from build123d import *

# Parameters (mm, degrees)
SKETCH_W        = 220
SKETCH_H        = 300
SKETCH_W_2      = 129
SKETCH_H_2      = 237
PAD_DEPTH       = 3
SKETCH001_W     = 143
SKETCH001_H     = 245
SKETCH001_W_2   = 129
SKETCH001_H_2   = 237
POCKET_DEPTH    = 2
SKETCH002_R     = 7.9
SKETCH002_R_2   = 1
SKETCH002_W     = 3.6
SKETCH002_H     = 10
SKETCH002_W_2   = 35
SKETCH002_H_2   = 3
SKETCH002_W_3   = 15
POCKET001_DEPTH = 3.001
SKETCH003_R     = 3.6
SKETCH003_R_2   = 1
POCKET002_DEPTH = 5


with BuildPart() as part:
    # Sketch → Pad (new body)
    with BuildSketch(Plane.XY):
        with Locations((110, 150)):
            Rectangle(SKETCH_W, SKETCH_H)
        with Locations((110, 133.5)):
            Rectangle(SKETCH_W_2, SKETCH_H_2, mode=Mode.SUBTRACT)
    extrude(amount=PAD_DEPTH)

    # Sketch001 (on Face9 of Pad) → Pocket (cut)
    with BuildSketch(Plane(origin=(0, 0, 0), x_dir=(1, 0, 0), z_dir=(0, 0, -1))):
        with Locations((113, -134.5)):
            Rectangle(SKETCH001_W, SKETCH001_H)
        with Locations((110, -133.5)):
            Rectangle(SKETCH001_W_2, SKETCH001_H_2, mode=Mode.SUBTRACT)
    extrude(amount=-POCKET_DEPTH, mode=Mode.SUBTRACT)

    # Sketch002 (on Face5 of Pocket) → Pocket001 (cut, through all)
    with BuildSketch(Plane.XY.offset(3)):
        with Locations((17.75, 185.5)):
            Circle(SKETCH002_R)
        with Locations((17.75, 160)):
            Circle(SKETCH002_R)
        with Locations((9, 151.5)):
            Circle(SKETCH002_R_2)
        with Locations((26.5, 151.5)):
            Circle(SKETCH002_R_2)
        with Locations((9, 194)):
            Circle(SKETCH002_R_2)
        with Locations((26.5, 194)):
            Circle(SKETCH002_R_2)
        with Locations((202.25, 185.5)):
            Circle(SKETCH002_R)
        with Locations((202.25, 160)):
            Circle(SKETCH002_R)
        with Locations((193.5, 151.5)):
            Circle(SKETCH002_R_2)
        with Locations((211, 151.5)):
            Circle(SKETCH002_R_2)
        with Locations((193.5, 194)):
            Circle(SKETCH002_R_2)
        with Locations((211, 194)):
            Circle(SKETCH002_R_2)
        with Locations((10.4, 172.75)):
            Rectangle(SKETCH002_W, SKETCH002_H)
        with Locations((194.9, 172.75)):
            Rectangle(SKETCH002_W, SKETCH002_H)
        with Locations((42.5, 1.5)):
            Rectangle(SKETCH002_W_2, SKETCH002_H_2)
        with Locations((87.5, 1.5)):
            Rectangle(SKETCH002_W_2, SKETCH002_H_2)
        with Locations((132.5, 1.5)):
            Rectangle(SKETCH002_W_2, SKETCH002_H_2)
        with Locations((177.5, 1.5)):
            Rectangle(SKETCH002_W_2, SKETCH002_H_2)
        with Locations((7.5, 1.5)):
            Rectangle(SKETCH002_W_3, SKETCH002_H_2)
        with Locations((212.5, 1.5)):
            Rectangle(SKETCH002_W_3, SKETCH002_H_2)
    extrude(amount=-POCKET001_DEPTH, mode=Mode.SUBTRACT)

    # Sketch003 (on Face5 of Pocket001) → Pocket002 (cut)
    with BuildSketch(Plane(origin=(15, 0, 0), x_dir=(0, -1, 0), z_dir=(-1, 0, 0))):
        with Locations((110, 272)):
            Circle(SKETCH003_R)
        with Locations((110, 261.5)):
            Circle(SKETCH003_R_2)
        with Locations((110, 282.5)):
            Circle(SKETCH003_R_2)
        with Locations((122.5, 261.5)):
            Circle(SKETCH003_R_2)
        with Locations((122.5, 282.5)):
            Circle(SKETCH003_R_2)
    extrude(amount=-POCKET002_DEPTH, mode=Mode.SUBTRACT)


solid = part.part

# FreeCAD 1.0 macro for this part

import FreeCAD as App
import Part
import Sketcher

V = App.Vector
Q = App.Units.Quantity


def add_polygon(sketch, points):
    """Adds a closed chain of lines whose ends are joined by coincident constraints."""
    first, n = sketch.GeometryCount, len(points)
    for a, b in zip(points, points[1:] + points[:1]):
        sketch.addGeometry(Part.LineSegment(App.Vector(*a, 0), App.Vector(*b, 0)), False)
    for i in range(n):
        sketch.addConstraint(Sketcher.Constraint("Coincident", first + i, 2, first + (i + 1) % n, 1))

doc = App.newDocument("Part")
body = doc.addObject("PartDesign::Body", "Body")

# Sketch on XY plane
sketch1 = body.newObject("Sketcher::SketchObject", "Sketch")
sketch1.AttachmentSupport = (doc.getObject("XY_Plane"), [""])
sketch1.MapMode = "FlatFace"
add_polygon(sketch1, [(0, 300), (0, 0), (220, 0), (220, 300)])  # lines 0-3
add_polygon(sketch1, [(174, 15), (46, 15), (46, 252), (174, 252)])  # lines 4-7
sketch1.addConstraint(Sketcher.Constraint("Vertical", 0))
sketch1.addConstraint(Sketcher.Constraint("Horizontal", 1))
sketch1.addConstraint(Sketcher.Constraint("Vertical", 2))
sketch1.addConstraint(Sketcher.Constraint("Horizontal", 3))
sketch1.addConstraint(Sketcher.Constraint("Horizontal", 4))
sketch1.addConstraint(Sketcher.Constraint("Vertical", 5))
sketch1.addConstraint(Sketcher.Constraint("Horizontal", 6))
sketch1.addConstraint(Sketcher.Constraint("Vertical", 7))
sketch1.addConstraint(Sketcher.Constraint("Coincident", 0, 2, -1, 1))
sketch1.addConstraint(Sketcher.Constraint("DistanceX", 1, 1, 1, 2, Q("220 mm")))
sketch1.addConstraint(Sketcher.Constraint("DistanceX", 4, 2, 4, 1, Q("129 mm")))
sketch1.addConstraint(Sketcher.Constraint("DistanceY", 0, 2, 0, 1, Q("300 mm")))
sketch1.addConstraint(Sketcher.Constraint("DistanceY", 5, 1, 5, 2, Q("237 mm")))
sketch1.addConstraint(Sketcher.Constraint("DistanceY", -1, 1, 4, 2, Q("15 mm")))
sketch1.addConstraint(Sketcher.Constraint("DistanceX", -1, 1, 4, 2, Q("45.5 mm")))
pad1 = body.newObject("PartDesign::Pad", "Pad")
pad1.Profile = sketch1
pad1.Length = 3

# Sketch on XY plane
sketch2 = body.newObject("Sketcher::SketchObject", "Sketch001")
sketch2.AttachmentSupport = (doc.getObject("XY_Plane"), [""])
sketch2.MapMode = "FlatFace"
add_polygon(sketch2, [(42, 12), (42, 257), (184, 257), (184, 12)])  # lines 0-3
add_polygon(sketch2, [(174, 252), (46, 252), (46, 15), (174, 15)])  # lines 4-7
sketch2.addConstraint(Sketcher.Constraint("Vertical", 0))
sketch2.addConstraint(Sketcher.Constraint("Horizontal", 1))
sketch2.addConstraint(Sketcher.Constraint("Vertical", 2))
sketch2.addConstraint(Sketcher.Constraint("Horizontal", 3))
sketch2.addConstraint(Sketcher.Constraint("Horizontal", 4))
sketch2.addConstraint(Sketcher.Constraint("Vertical", 5))
sketch2.addConstraint(Sketcher.Constraint("Horizontal", 6))
sketch2.addConstraint(Sketcher.Constraint("Vertical", 7))
sketch2.addConstraint(Sketcher.Constraint("DistanceX", 1, 1, 1, 2, Q("143 mm")))
sketch2.addConstraint(Sketcher.Constraint("DistanceX", 4, 2, 4, 1, Q("129 mm")))
sketch2.addConstraint(Sketcher.Constraint("DistanceY", 0, 1, 0, 2, Q("245 mm")))
sketch2.addConstraint(Sketcher.Constraint("DistanceY", 5, 2, 5, 1, Q("237 mm")))
sketch2.addConstraint(Sketcher.Constraint("DistanceY", -1, 1, 0, 2, Q("257 mm")))
sketch2.addConstraint(Sketcher.Constraint("DistanceY", -1, 1, 4, 2, Q("252 mm")))
sketch2.addConstraint(Sketcher.Constraint("DistanceX", 0, 2, 4, 2, Q("4 mm")))
sketch2.addConstraint(Sketcher.Constraint("DistanceX", -1, 1, 0, 2, Q("41.5 mm")))
pocket1 = body.newObject("PartDesign::Pocket", "Pocket")
pocket1.Profile = sketch2
pocket1.Length = 2
pocket1.Reversed = True

# Sketch on XY plane
sketch3 = body.newObject("Sketcher::SketchObject", "Sketch002")
sketch3.AttachmentSupport = (doc.getObject("XY_Plane"), [""])
sketch3.MapMode = "FlatFace"
sketch3.AttachmentOffset = App.Placement(V(0, 0, 3), App.Rotation())
sketch3.addGeometry(Part.Circle(V(17.8, 185.5, 0), V(0, 0, 1), 7.9), False)  # 0
sketch3.addGeometry(Part.Circle(V(17.8, 160, 0), V(0, 0, 1), 7.9), False)  # 1
sketch3.addGeometry(Part.Circle(V(9, 151.5, 0), V(0, 0, 1), 1), False)  # 2
sketch3.addGeometry(Part.Circle(V(26.5, 151.5, 0), V(0, 0, 1), 1), False)  # 3
sketch3.addGeometry(Part.Circle(V(9, 194, 0), V(0, 0, 1), 1), False)  # 4
sketch3.addGeometry(Part.Circle(V(26.5, 194, 0), V(0, 0, 1), 1), False)  # 5
sketch3.addGeometry(Part.Circle(V(202.2, 185.5, 0), V(0, 0, 1), 7.9), False)  # 6
sketch3.addGeometry(Part.Circle(V(202.2, 160, 0), V(0, 0, 1), 7.9), False)  # 7
sketch3.addGeometry(Part.Circle(V(193.5, 151.5, 0), V(0, 0, 1), 1), False)  # 8
sketch3.addGeometry(Part.Circle(V(211, 151.5, 0), V(0, 0, 1), 1), False)  # 9
sketch3.addGeometry(Part.Circle(V(193.5, 194, 0), V(0, 0, 1), 1), False)  # 10
sketch3.addGeometry(Part.Circle(V(211, 194, 0), V(0, 0, 1), 1), False)  # 11
add_polygon(sketch3, [(8.6, 177.8), (8.6, 167.8), (12.2, 167.8), (12.2, 177.8)])  # lines 12-15
add_polygon(sketch3, [(193.1, 177.8), (193.1, 167.8), (196.7, 167.8), (196.7, 177.8)])  # lines 16-19
add_polygon(sketch3, [(25, 3), (25, 0), (60, 0), (60, 3)])  # lines 20-23
add_polygon(sketch3, [(70, 3), (70, 0), (105, 0), (105, 3)])  # lines 24-27
add_polygon(sketch3, [(115, 3), (115, 0), (150, 0), (150, 3)])  # lines 28-31
add_polygon(sketch3, [(160, 3), (160, 0), (195, 0), (195, 3)])  # lines 32-35
add_polygon(sketch3, [(0, 3), (0, 0), (15, 0), (15, 3)])  # lines 36-39
add_polygon(sketch3, [(205, 3), (205, 0), (220, 0), (220, 3)])  # lines 40-43
sketch3.addConstraint(Sketcher.Constraint("Vertical", 12))
sketch3.addConstraint(Sketcher.Constraint("Horizontal", 13))
sketch3.addConstraint(Sketcher.Constraint("Vertical", 14))
sketch3.addConstraint(Sketcher.Constraint("Horizontal", 15))
sketch3.addConstraint(Sketcher.Constraint("Vertical", 16))
sketch3.addConstraint(Sketcher.Constraint("Horizontal", 17))
sketch3.addConstraint(Sketcher.Constraint("Vertical", 18))
sketch3.addConstraint(Sketcher.Constraint("Horizontal", 19))
sketch3.addConstraint(Sketcher.Constraint("Vertical", 20))
sketch3.addConstraint(Sketcher.Constraint("Horizontal", 21))
sketch3.addConstraint(Sketcher.Constraint("Vertical", 22))
sketch3.addConstraint(Sketcher.Constraint("Horizontal", 23))
sketch3.addConstraint(Sketcher.Constraint("Vertical", 24))
sketch3.addConstraint(Sketcher.Constraint("Horizontal", 25))
sketch3.addConstraint(Sketcher.Constraint("Vertical", 26))
sketch3.addConstraint(Sketcher.Constraint("Horizontal", 27))
sketch3.addConstraint(Sketcher.Constraint("Vertical", 28))
sketch3.addConstraint(Sketcher.Constraint("Horizontal", 29))
sketch3.addConstraint(Sketcher.Constraint("Vertical", 30))
sketch3.addConstraint(Sketcher.Constraint("Horizontal", 31))
sketch3.addConstraint(Sketcher.Constraint("Vertical", 32))
sketch3.addConstraint(Sketcher.Constraint("Horizontal", 33))
sketch3.addConstraint(Sketcher.Constraint("Vertical", 34))
sketch3.addConstraint(Sketcher.Constraint("Horizontal", 35))
sketch3.addConstraint(Sketcher.Constraint("Vertical", 36))
sketch3.addConstraint(Sketcher.Constraint("Horizontal", 37))
sketch3.addConstraint(Sketcher.Constraint("Vertical", 38))
sketch3.addConstraint(Sketcher.Constraint("Horizontal", 39))
sketch3.addConstraint(Sketcher.Constraint("Vertical", 40))
sketch3.addConstraint(Sketcher.Constraint("Horizontal", 41))
sketch3.addConstraint(Sketcher.Constraint("Vertical", 42))
sketch3.addConstraint(Sketcher.Constraint("Horizontal", 43))
sketch3.addConstraint(Sketcher.Constraint("Coincident", 36, 2, -1, 1))
sketch3.addConstraint(Sketcher.Constraint("Equal", 0, 1))
sketch3.addConstraint(Sketcher.Constraint("Equal", 2, 3))
sketch3.addConstraint(Sketcher.Constraint("Equal", 3, 4))
sketch3.addConstraint(Sketcher.Constraint("Equal", 4, 5))
sketch3.addConstraint(Sketcher.Constraint("Equal", 1, 6))
sketch3.addConstraint(Sketcher.Constraint("Equal", 6, 7))
sketch3.addConstraint(Sketcher.Constraint("Equal", 5, 8))
sketch3.addConstraint(Sketcher.Constraint("Equal", 8, 9))
sketch3.addConstraint(Sketcher.Constraint("Equal", 9, 10))
sketch3.addConstraint(Sketcher.Constraint("Equal", 10, 11))
sketch3.addConstraint(Sketcher.Constraint("PointOnObject", 20, 2, -1))
sketch3.addConstraint(Sketcher.Constraint("PointOnObject", 24, 2, -1))
sketch3.addConstraint(Sketcher.Constraint("PointOnObject", 28, 2, -1))
sketch3.addConstraint(Sketcher.Constraint("PointOnObject", 32, 2, -1))
sketch3.addConstraint(Sketcher.Constraint("PointOnObject", 40, 2, -1))
sketch3.addConstraint(Sketcher.Constraint("Horizontal", 2, 3, 3, 3))
sketch3.addConstraint(Sketcher.Constraint("Horizontal", 4, 3, 5, 3))
sketch3.addConstraint(Sketcher.Constraint("Horizontal", 0, 3, 6, 3))
sketch3.addConstraint(Sketcher.Constraint("Horizontal", 1, 3, 7, 3))
sketch3.addConstraint(Sketcher.Constraint("Horizontal", 3, 3, 8, 3))
sketch3.addConstraint(Sketcher.Constraint("Horizontal", 8, 3, 9, 3))
sketch3.addConstraint(Sketcher.Constraint("Horizontal", 5, 3, 10, 3))
sketch3.addConstraint(Sketcher.Constraint("Horizontal", 10, 3, 11, 3))
sketch3.addConstraint(Sketcher.Constraint("Horizontal", 13, 2, 16, 2))
sketch3.addConstraint(Sketcher.Constraint("Horizontal", 15, 2, 18, 2))
sketch3.addConstraint(Sketcher.Constraint("Horizontal", 23, 2, 26, 2))
sketch3.addConstraint(Sketcher.Constraint("Horizontal", 27, 2, 30, 2))
sketch3.addConstraint(Sketcher.Constraint("Horizontal", 31, 2, 34, 2))
sketch3.addConstraint(Sketcher.Constraint("Horizontal", 35, 2, 38, 2))
sketch3.addConstraint(Sketcher.Constraint("Horizontal", 39, 2, 42, 2))
sketch3.addConstraint(Sketcher.Constraint("Vertical", 0, 3, 1, 3))
sketch3.addConstraint(Sketcher.Constraint("Vertical", 2, 3, 4, 3))
sketch3.addConstraint(Sketcher.Constraint("Vertical", 3, 3, 5, 3))
sketch3.addConstraint(Sketcher.Constraint("Vertical", 6, 3, 7, 3))
sketch3.addConstraint(Sketcher.Constraint("Vertical", 8, 3, 10, 3))
sketch3.addConstraint(Sketcher.Constraint("Vertical", 9, 3, 11, 3))
sketch3.addConstraint(Sketcher.Constraint("Equal", 15, 17))
sketch3.addConstraint(Sketcher.Constraint("Equal", 23, 25))
sketch3.addConstraint(Sketcher.Constraint("Equal", 27, 29))
sketch3.addConstraint(Sketcher.Constraint("Equal", 31, 33))
sketch3.addConstraint(Sketcher.Constraint("Equal", 39, 41))
sketch3.addConstraint(Sketcher.Constraint("Diameter", 2, Q("2 mm")))
sketch3.addConstraint(Sketcher.Constraint("Diameter", 0, Q("15.8 mm")))
sketch3.addConstraint(Sketcher.Constraint("DistanceX", 21, 1, 21, 2, Q("35 mm")))
sketch3.addConstraint(Sketcher.Constraint("DistanceX", 37, 1, 37, 2, Q("15 mm")))
sketch3.addConstraint(Sketcher.Constraint("DistanceY", 12, 2, 12, 1, Q("10 mm")))
sketch3.addConstraint(Sketcher.Constraint("DistanceY", 20, 2, 20, 1, Q("3 mm")))
sketch3.addConstraint(Sketcher.Constraint("DistanceX", 13, 1, 13, 2, Q("3.6 mm")))
sketch3.addConstraint(Sketcher.Constraint("DistanceY", -1, 1, 1, 3, Q("160 mm")))
sketch3.addConstraint(Sketcher.Constraint("DistanceX", -1, 1, 2, 3, Q("9 mm")))
sketch3.addConstraint(Sketcher.Constraint("DistanceY", -1, 1, 4, 3, Q("194 mm")))
sketch3.addConstraint(Sketcher.Constraint("DistanceX", -1, 1, 9, 3, Q("211 mm")))
sketch3.addConstraint(Sketcher.Constraint("DistanceX", -1, 1, 20, 2, Q("25 mm")))
sketch3.addConstraint(Sketcher.Constraint("DistanceX", -1, 1, 24, 2, Q("70 mm")))
sketch3.addConstraint(Sketcher.Constraint("DistanceX", -1, 1, 28, 2, Q("115 mm")))
sketch3.addConstraint(Sketcher.Constraint("DistanceX", -1, 1, 32, 2, Q("160 mm")))
sketch3.addConstraint(Sketcher.Constraint("DistanceX", -1, 1, 40, 2, Q("205 mm")))
sketch3.addConstraint(Sketcher.Constraint("DistanceY", 2, 3, 0, 3, Q("34 mm")))
sketch3.addConstraint(Sketcher.Constraint("DistanceX", 3, 3, 8, 3, Q("167 mm")))
sketch3.addConstraint(Sketcher.Constraint("DistanceY", -1, 1, 0, 3, Q("185.5 mm")))
sketch3.addConstraint(Sketcher.Constraint("DistanceX", -1, 1, 3, 3, Q("26.5 mm")))
sketch3.addConstraint(Sketcher.Constraint("DistanceX", -1, 1, 12, 2, Q("8.6 mm")))
sketch3.addConstraint(Sketcher.Constraint("DistanceX", -1, 1, 16, 2, Q("193.1 mm")))
sketch3.addConstraint(Sketcher.Constraint("DistanceX", 0, 3, 6, 3, Q("184.5 mm")))
sketch3.addConstraint(Sketcher.Constraint("DistanceX", -1, 1, 0, 3, Q("17.75 mm")))
sketch3.addConstraint(Sketcher.Constraint("DistanceY", -1, 1, 12, 2, Q("167.75 mm")))
pocket2 = body.newObject("PartDesign::Pocket", "Pocket001")
pocket2.Profile = sketch3
pocket2.Type = "ThroughAll"

# Sketch on YZ plane
sketch4 = body.newObject("Sketcher::SketchObject", "Sketch003")
sketch4.AttachmentSupport = (doc.getObject("YZ_Plane"), [""])
sketch4.MapMode = "FlatFace"
sketch4.AttachmentOffset = App.Placement(V(0, 0, 15), App.Rotation())
sketch4.addGeometry(Part.Circle(V(-110, 272, 0), V(0, 0, 1), 3.6), False)
sketch4.addGeometry(Part.Circle(V(-110, 261.5, 0), V(0, 0, 1), 1), False)
sketch4.addGeometry(Part.Circle(V(-110, 282.5, 0), V(0, 0, 1), 1), False)
sketch4.addGeometry(Part.Circle(V(-122.5, 261.5, 0), V(0, 0, 1), 1), False)
sketch4.addGeometry(Part.Circle(V(-122.5, 282.5, 0), V(0, 0, 1), 1), False)
sketch4.addConstraint(Sketcher.Constraint("Equal", 1, 2))
sketch4.addConstraint(Sketcher.Constraint("Equal", 2, 3))
sketch4.addConstraint(Sketcher.Constraint("Equal", 3, 4))
sketch4.addConstraint(Sketcher.Constraint("Horizontal", 1, 3, 3, 3))
sketch4.addConstraint(Sketcher.Constraint("Horizontal", 2, 3, 4, 3))
sketch4.addConstraint(Sketcher.Constraint("Vertical", 0, 3, 1, 3))
sketch4.addConstraint(Sketcher.Constraint("Vertical", 1, 3, 2, 3))
sketch4.addConstraint(Sketcher.Constraint("Vertical", 3, 3, 4, 3))
sketch4.addConstraint(Sketcher.Constraint("Diameter", 1, Q("2 mm")))
sketch4.addConstraint(Sketcher.Constraint("Diameter", 0, Q("7.2 mm")))
sketch4.addConstraint(Sketcher.Constraint("DistanceX", 0, 3, -1, 1, Q("110 mm")))
sketch4.addConstraint(Sketcher.Constraint("DistanceY", -1, 1, 0, 3, Q("272 mm")))
sketch4.addConstraint(Sketcher.Constraint("DistanceY", 1, 3, 2, 3, Q("21 mm")))
sketch4.addConstraint(Sketcher.Constraint("DistanceY", -1, 1, 1, 3, Q("261.5 mm")))
sketch4.addConstraint(Sketcher.Constraint("DistanceX", 3, 3, -1, 1, Q("122.5 mm")))
pocket3 = body.newObject("PartDesign::Pocket", "Pocket002")
pocket3.Profile = sketch4
pocket3.Length = 5
pocket3.Reversed = True

doc.recompute()
